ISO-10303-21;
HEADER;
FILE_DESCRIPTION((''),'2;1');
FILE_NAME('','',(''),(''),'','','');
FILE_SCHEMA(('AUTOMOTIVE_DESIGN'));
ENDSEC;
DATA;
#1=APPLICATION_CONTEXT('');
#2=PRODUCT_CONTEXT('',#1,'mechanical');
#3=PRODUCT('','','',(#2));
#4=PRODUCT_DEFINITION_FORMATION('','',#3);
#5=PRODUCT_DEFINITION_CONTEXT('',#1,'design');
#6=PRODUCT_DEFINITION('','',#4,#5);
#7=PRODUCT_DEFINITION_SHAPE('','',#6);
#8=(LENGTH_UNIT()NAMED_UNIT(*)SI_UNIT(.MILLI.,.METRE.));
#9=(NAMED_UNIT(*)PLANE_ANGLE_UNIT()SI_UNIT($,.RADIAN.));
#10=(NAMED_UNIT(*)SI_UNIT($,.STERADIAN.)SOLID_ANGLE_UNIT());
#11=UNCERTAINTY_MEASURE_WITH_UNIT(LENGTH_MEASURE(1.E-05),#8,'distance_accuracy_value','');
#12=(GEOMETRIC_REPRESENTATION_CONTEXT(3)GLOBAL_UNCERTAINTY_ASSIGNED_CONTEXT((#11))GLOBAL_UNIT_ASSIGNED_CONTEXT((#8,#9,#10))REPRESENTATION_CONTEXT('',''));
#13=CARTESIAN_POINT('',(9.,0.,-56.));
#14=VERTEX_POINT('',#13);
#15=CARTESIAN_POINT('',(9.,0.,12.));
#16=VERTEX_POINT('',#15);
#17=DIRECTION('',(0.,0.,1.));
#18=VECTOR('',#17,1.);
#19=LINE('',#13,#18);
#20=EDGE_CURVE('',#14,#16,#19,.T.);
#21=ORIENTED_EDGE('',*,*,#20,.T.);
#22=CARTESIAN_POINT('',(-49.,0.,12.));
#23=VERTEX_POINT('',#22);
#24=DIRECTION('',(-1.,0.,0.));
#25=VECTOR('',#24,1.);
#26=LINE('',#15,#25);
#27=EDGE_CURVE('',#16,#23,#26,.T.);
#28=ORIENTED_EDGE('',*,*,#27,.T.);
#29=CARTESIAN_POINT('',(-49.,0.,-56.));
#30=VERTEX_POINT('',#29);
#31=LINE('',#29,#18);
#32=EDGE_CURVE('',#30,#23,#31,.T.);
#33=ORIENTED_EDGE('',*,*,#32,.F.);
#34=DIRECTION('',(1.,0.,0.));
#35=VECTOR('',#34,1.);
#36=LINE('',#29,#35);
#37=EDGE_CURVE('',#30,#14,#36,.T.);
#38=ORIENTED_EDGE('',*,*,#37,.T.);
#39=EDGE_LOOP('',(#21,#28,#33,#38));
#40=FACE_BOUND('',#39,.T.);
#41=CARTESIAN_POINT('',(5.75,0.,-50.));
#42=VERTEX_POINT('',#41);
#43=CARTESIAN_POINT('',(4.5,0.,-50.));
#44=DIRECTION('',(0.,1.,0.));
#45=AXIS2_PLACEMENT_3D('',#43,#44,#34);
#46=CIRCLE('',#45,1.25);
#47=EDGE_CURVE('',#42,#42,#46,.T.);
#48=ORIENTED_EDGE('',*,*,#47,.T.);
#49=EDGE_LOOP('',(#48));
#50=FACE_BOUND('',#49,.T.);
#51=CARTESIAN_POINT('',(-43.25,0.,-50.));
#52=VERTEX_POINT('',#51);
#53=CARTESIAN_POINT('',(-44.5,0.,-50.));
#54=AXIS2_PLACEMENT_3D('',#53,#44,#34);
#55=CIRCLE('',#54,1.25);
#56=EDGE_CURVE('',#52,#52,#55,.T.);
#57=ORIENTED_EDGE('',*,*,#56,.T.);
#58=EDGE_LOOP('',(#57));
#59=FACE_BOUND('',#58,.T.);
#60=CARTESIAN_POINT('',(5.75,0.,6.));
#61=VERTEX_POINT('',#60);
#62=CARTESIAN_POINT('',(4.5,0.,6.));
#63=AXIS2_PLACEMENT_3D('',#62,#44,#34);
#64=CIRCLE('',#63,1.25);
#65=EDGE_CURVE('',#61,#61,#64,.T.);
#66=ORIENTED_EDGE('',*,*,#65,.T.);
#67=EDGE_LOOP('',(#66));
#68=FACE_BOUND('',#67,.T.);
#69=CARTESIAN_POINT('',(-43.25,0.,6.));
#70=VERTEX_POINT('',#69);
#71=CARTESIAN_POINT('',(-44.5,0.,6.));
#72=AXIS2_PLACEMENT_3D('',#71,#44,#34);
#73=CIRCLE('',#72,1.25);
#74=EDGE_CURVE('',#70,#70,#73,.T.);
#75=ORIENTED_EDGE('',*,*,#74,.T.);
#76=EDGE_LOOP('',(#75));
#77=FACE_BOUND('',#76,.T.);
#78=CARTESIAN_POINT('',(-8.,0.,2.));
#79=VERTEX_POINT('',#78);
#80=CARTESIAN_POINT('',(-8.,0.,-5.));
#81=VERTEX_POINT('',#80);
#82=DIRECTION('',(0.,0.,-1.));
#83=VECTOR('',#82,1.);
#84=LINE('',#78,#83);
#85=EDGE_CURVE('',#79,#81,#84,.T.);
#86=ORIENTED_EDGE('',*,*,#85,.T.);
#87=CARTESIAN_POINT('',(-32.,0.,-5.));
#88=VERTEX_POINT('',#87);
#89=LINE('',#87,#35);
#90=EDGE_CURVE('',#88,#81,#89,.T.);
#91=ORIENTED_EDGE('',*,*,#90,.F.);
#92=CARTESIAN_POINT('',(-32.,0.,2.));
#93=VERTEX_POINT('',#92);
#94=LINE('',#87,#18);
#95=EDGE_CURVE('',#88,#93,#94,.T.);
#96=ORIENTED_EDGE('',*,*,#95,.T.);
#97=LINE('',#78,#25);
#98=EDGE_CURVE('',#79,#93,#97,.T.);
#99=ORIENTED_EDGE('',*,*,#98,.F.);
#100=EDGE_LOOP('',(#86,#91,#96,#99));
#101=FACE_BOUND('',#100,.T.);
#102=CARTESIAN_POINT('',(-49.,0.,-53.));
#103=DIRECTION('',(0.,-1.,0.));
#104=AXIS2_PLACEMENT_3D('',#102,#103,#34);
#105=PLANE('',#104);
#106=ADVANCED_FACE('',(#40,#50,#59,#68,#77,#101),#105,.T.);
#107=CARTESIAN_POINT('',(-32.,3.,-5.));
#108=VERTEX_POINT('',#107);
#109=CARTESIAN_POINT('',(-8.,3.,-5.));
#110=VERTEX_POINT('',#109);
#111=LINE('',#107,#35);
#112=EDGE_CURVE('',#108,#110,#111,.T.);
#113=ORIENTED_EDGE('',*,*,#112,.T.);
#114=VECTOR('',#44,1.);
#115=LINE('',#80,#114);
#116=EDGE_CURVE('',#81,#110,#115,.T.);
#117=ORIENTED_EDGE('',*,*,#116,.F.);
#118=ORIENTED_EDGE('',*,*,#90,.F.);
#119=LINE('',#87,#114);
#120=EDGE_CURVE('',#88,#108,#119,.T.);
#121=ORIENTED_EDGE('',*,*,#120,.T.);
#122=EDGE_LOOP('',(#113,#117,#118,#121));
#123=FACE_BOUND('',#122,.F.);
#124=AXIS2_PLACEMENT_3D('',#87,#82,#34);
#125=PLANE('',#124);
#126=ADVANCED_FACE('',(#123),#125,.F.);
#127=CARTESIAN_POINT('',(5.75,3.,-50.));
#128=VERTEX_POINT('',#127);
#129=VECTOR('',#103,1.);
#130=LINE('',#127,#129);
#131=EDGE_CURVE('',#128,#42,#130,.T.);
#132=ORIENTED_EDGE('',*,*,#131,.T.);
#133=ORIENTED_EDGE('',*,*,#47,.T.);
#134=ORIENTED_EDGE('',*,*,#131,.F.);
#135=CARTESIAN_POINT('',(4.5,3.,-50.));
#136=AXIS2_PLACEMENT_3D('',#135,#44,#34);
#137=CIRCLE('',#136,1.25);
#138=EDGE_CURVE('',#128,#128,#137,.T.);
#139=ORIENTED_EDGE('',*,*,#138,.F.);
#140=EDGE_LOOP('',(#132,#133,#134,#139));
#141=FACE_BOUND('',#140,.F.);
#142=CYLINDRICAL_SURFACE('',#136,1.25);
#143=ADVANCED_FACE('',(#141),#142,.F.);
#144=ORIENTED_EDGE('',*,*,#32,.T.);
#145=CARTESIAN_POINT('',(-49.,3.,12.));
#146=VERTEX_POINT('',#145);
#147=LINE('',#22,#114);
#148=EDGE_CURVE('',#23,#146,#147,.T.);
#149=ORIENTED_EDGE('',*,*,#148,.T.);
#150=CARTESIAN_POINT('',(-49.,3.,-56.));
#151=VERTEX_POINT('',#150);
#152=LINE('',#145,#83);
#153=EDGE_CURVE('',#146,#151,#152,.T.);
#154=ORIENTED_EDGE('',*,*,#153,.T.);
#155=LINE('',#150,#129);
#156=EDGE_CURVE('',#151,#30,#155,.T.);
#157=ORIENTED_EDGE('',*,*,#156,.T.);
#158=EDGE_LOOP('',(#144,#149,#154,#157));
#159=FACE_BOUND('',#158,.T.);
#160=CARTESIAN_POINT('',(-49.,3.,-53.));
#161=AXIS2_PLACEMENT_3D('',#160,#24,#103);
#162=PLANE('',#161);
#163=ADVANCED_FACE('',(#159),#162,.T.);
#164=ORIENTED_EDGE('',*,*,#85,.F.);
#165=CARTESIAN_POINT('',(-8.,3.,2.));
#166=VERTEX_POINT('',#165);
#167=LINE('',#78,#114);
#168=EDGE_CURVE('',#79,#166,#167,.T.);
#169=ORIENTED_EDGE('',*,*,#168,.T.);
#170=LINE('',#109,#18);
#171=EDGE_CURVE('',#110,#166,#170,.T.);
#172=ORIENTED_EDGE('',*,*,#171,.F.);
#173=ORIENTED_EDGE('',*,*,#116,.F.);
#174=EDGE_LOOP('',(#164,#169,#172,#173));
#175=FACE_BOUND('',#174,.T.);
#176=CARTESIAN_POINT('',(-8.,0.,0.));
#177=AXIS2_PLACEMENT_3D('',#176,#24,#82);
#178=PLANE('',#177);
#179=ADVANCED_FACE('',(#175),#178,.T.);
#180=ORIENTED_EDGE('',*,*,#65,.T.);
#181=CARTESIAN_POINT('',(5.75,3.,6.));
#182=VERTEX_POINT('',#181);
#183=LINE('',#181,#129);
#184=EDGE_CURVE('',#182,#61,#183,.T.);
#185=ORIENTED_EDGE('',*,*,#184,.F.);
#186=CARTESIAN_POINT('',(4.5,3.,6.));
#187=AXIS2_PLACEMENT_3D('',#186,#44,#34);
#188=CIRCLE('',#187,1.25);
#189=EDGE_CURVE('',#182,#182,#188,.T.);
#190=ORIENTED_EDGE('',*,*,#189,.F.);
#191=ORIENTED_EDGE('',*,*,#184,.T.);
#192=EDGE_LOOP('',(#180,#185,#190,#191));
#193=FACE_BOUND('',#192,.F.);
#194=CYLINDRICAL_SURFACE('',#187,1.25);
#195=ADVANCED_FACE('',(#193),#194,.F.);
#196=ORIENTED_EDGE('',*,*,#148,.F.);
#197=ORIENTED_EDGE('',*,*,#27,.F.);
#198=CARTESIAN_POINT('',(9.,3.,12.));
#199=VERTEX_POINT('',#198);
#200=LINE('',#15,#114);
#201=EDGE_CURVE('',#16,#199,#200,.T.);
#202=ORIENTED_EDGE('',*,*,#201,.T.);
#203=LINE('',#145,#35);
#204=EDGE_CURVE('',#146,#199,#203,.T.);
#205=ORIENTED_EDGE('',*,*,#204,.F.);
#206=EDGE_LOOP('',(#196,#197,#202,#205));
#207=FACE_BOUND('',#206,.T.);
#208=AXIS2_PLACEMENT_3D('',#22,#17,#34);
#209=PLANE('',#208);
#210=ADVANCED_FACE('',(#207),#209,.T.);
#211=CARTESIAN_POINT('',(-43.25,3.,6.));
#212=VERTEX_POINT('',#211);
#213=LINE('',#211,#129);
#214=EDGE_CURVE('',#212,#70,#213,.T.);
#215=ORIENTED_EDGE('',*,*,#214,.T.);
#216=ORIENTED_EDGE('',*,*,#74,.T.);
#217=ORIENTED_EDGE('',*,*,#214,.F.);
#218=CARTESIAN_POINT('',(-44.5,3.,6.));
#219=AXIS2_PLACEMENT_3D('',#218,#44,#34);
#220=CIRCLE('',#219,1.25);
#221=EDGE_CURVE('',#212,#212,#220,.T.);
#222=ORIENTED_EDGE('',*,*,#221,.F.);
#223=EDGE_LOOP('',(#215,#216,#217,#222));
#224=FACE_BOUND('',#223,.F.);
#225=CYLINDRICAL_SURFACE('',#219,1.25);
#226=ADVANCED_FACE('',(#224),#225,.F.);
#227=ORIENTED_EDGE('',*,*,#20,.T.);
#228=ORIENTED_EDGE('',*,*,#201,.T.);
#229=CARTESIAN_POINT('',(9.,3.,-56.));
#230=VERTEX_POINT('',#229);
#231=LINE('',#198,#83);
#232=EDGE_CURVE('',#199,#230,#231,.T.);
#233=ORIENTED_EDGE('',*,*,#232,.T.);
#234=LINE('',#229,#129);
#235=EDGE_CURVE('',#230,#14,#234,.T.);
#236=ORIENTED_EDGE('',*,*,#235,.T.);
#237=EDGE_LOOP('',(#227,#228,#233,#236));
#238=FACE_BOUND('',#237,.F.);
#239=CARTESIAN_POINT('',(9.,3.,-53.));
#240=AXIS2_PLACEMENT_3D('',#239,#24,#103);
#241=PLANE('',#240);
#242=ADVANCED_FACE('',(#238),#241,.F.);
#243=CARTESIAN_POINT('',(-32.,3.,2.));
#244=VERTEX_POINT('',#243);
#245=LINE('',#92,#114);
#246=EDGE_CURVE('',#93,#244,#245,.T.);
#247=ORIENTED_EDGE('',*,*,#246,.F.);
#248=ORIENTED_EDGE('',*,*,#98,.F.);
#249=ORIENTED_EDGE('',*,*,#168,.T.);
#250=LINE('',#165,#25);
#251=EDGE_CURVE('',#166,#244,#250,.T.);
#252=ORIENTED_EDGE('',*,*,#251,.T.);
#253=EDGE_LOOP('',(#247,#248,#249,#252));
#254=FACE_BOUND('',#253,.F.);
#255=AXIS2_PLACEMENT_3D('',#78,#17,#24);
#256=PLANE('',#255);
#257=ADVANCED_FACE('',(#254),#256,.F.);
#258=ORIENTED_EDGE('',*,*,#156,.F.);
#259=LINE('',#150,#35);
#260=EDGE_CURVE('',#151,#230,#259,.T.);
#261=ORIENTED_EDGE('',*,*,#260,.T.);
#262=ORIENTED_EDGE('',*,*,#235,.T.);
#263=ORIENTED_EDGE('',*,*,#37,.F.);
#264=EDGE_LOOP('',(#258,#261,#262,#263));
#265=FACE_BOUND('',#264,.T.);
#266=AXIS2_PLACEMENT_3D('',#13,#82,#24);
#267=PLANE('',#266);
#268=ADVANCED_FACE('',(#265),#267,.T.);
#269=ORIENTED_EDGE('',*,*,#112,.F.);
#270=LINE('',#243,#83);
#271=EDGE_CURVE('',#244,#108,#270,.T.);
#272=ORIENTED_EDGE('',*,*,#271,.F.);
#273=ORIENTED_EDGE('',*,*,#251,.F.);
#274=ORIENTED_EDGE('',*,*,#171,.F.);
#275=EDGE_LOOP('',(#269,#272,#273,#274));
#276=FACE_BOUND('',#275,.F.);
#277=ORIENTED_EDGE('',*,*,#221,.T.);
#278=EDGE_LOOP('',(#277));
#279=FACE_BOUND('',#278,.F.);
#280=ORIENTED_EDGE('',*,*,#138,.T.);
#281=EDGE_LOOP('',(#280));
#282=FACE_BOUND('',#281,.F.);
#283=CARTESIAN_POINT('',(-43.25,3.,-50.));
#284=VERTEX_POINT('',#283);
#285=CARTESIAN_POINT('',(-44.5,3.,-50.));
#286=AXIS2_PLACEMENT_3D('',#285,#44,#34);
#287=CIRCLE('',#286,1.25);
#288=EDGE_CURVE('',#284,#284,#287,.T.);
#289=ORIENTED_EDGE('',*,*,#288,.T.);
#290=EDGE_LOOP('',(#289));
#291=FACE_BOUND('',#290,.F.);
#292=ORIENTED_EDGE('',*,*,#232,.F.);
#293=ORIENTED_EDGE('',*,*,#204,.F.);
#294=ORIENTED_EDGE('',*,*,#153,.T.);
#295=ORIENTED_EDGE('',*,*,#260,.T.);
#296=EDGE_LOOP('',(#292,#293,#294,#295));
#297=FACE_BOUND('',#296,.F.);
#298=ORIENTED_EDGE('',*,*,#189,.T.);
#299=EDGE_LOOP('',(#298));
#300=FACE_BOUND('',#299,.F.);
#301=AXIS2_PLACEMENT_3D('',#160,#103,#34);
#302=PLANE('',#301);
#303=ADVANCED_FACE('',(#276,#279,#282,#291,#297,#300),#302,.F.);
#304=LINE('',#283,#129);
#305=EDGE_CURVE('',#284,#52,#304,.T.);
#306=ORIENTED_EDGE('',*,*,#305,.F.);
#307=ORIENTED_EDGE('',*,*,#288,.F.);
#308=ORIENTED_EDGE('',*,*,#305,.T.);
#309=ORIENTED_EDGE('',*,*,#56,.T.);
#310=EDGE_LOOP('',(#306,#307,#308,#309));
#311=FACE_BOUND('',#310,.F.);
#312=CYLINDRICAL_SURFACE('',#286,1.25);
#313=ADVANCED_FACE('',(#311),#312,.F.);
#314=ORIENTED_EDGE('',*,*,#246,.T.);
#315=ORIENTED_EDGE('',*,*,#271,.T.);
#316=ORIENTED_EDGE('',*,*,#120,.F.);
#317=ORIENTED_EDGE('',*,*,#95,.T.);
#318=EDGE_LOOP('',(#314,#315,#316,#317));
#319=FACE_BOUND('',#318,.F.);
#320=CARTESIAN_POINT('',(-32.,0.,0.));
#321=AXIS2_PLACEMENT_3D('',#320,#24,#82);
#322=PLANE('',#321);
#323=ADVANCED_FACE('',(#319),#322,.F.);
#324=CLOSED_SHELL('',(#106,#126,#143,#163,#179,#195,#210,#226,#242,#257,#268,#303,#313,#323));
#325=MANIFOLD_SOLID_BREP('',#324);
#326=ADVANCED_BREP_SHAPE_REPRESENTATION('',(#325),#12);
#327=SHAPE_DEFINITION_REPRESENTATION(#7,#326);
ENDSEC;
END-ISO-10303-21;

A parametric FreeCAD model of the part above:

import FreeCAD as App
import Part
import Sketcher
from FreeCAD import Vector
Q = App.Units.Quantity

doc = App.newDocument("Part")
body = doc.addObject("PartDesign::Body", "Body")

# Sketch on XZ plane
sketch1 = body.newObject("Sketcher::SketchObject", "Sketch")
sketch1.AttachmentSupport = (doc.getObject("XZ_Plane"), [""])
sketch1.MapMode = "FlatFace"
sketch1.addGeometry([
    Part.LineSegment(Vector(9, 9, 0), Vector(9, -53, 0)),  # 0
    Part.LineSegment(Vector(9, -53, 0), Vector(-49, -53, 0)),  # 1
    Part.LineSegment(Vector(-49, -53, 0), Vector(-49, 9, 0)),  # 2
    Part.LineSegment(Vector(-49, 9, 0), Vector(9, 9, 0)),  # 3
    Part.LineSegment(Vector(-8, -5, 0), Vector(-8, 2, 0)),  # 4
    Part.LineSegment(Vector(-8, 2, 0), Vector(-32, 2, 0)),  # 5
    Part.LineSegment(Vector(-32, 2, 0), Vector(-32, -5, 0)),  # 6
    Part.LineSegment(Vector(-32, -5, 0), Vector(-8, -5, 0)),  # 7
], False)
sketch1.addConstraint([
    Sketcher.Constraint("Coincident", 0, 2, 1, 1),
    Sketcher.Constraint("Coincident", 1, 2, 2, 1),
    Sketcher.Constraint("Coincident", 2, 2, 3, 1),
    Sketcher.Constraint("Coincident", 3, 2, 0, 1),
    Sketcher.Constraint("Coincident", 4, 2, 5, 1),
    Sketcher.Constraint("Coincident", 5, 2, 6, 1),
    Sketcher.Constraint("Coincident", 6, 2, 7, 1),
    Sketcher.Constraint("Coincident", 7, 2, 4, 1),
    Sketcher.Constraint("Vertical", 0),
    Sketcher.Constraint("Horizontal", 1),
    Sketcher.Constraint("Vertical", 2),
    Sketcher.Constraint("Horizontal", 3),
    Sketcher.Constraint("Vertical", 4),
    Sketcher.Constraint("Horizontal", 5),
    Sketcher.Constraint("Vertical", 6),
    Sketcher.Constraint("Horizontal", 7),
    Sketcher.Constraint("DistanceX", 1, 2, 1, 1, Q("58 mm")),
    Sketcher.Constraint("DistanceX", 5, 2, 5, 1, Q("24 mm")),
    Sketcher.Constraint("DistanceY", 0, 2, 0, 1, Q("62 mm")),
    Sketcher.Constraint("DistanceY", 4, 1, 4, 2, Q("7 mm")),
    Sketcher.Constraint("DistanceX", -1, 1, 0, 2, Q("9 mm")),
    Sketcher.Constraint("DistanceY", 0, 2, -1, 1, Q("53 mm")),
    Sketcher.Constraint("DistanceX", 4, 2, -1, 1, Q("8 mm")),
    Sketcher.Constraint("DistanceY", -1, 1, 4, 2, Q("2 mm")),
])
pad1 = body.newObject("PartDesign::Pad", "Pad")
pad1.Profile = sketch1
pad1.Length = 3
pad1.Reversed = True

# Sketch on XY plane
sketch2 = body.newObject("Sketcher::SketchObject", "Sketch001")
sketch2.AttachmentSupport = (doc.getObject("XY_Plane"), [""])
sketch2.MapMode = "FlatFace"
sketch2.AttachmentOffset = App.Placement(Vector(0, 0, 9), App.Rotation())
sketch2.addGeometry([
    Part.LineSegment(Vector(-49, 3, 0), Vector(-49, 0, 0)),
    Part.LineSegment(Vector(-49, 0, 0), Vector(9, 0, 0)),
    Part.LineSegment(Vector(9, 0, 0), Vector(9, 3, 0)),
    Part.LineSegment(Vector(9, 3, 0), Vector(-49, 3, 0)),
], False)
sketch2.addConstraint([
    Sketcher.Constraint("Coincident", 0, 2, 1, 1),
    Sketcher.Constraint("Coincident", 1, 2, 2, 1),
    Sketcher.Constraint("Coincident", 2, 2, 3, 1),
    Sketcher.Constraint("Coincident", 3, 2, 0, 1),
    Sketcher.Constraint("Vertical", 0),
    Sketcher.Constraint("Horizontal", 1),
    Sketcher.Constraint("Vertical", 2),
    Sketcher.Constraint("Horizontal", 3),
    Sketcher.Constraint("PointOnObject", 0, 2, -1),
    Sketcher.Constraint("DistanceX", 1, 1, 1, 2, Q("58 mm")),
    Sketcher.Constraint("DistanceY", 0, 2, 0, 1, Q("3 mm")),
    Sketcher.Constraint("DistanceX", 0, 2, -1, 1, Q("49 mm")),
])
pad2 = body.newObject("PartDesign::Pad", "Pad001")
pad2.Profile = sketch2
pad2.Length = 3

# Sketch on XY plane
sketch3 = body.newObject("Sketcher::SketchObject", "Sketch002")
sketch3.AttachmentSupport = (doc.getObject("XY_Plane"), [""])
sketch3.MapMode = "FlatFace"
sketch3.AttachmentOffset = App.Placement(Vector(0, 0, -53), App.Rotation())
sketch3.addGeometry([
    Part.LineSegment(Vector(-49, 0, 0), Vector(-49, 3, 0)),
    Part.LineSegment(Vector(-49, 3, 0), Vector(9, 3, 0)),
    Part.LineSegment(Vector(9, 3, 0), Vector(9, 0, 0)),
    Part.LineSegment(Vector(9, 0, 0), Vector(-49, 0, 0)),
], False)
sketch3.addConstraint([
    Sketcher.Constraint("Coincident", 0, 2, 1, 1),
    Sketcher.Constraint("Coincident", 1, 2, 2, 1),
    Sketcher.Constraint("Coincident", 2, 2, 3, 1),
    Sketcher.Constraint("Coincident", 3, 2, 0, 1),
    Sketcher.Constraint("Vertical", 0),
    Sketcher.Constraint("Horizontal", 1),
    Sketcher.Constraint("Vertical", 2),
    Sketcher.Constraint("Horizontal", 3),
    Sketcher.Constraint("PointOnObject", 2, 2, -1),
    Sketcher.Constraint("DistanceX", 1, 1, 1, 2, Q("58 mm")),
    Sketcher.Constraint("DistanceY", 0, 1, 0, 2, Q("3 mm")),
    Sketcher.Constraint("DistanceX", 0, 2, -1, 1, Q("49 mm")),
])
pad3 = body.newObject("PartDesign::Pad", "Pad002")
pad3.Profile = sketch3
pad3.Length = 3
pad3.Reversed = True

# Sketch on XZ plane
sketch4 = body.newObject("Sketcher::SketchObject", "Sketch003")
sketch4.AttachmentSupport = (doc.getObject("XZ_Plane"), [""])
sketch4.MapMode = "FlatFace"
sketch4.AttachmentOffset = App.Placement(Vector(0, 0, -3), App.Rotation())
sketch4.addGeometry([
    Part.Circle(Vector(-44.5, -50, 0), Vector(0, 0, 1), 1.25),
    Part.Circle(Vector(4.5, -50, 0), Vector(0, 0, 1), 1.25),
    Part.Circle(Vector(4.5, 6, 0), Vector(0, 0, 1), 1.25),
    Part.Circle(Vector(-44.5, 6, 0), Vector(0, 0, 1), 1.25),
], False)
sketch4.addConstraint([
    Sketcher.Constraint("Equal", 0, 1),
    Sketcher.Constraint("Equal", 1, 2),
    Sketcher.Constraint("Equal", 2, 3),
    Sketcher.Constraint("Horizontal", 0, 3, 1, 3),
    Sketcher.Constraint("Horizontal", 2, 3, 3, 3),
    Sketcher.Constraint("Vertical", 1, 3, 2, 3),
    Sketcher.Constraint("Vertical", 0, 3, 3, 3),
    Sketcher.Constraint("Diameter", 0, Q("2.5 mm")),
    Sketcher.Constraint("DistanceY", 0, 3, -1, 1, Q("50 mm")),
    Sketcher.Constraint("DistanceY", -1, 1, 2, 3, Q("6 mm")),
    Sketcher.Constraint("DistanceX", 0, 3, 1, 3, Q("49 mm")),
    Sketcher.Constraint("DistanceX", 0, 3, -1, 1, Q("44.5 mm")),
])
pocket1 = body.newObject("PartDesign::Pocket", "Pocket")
pocket1.Profile = sketch4
pocket1.Length = 5
pocket1.Reversed = True

doc.recompute()
